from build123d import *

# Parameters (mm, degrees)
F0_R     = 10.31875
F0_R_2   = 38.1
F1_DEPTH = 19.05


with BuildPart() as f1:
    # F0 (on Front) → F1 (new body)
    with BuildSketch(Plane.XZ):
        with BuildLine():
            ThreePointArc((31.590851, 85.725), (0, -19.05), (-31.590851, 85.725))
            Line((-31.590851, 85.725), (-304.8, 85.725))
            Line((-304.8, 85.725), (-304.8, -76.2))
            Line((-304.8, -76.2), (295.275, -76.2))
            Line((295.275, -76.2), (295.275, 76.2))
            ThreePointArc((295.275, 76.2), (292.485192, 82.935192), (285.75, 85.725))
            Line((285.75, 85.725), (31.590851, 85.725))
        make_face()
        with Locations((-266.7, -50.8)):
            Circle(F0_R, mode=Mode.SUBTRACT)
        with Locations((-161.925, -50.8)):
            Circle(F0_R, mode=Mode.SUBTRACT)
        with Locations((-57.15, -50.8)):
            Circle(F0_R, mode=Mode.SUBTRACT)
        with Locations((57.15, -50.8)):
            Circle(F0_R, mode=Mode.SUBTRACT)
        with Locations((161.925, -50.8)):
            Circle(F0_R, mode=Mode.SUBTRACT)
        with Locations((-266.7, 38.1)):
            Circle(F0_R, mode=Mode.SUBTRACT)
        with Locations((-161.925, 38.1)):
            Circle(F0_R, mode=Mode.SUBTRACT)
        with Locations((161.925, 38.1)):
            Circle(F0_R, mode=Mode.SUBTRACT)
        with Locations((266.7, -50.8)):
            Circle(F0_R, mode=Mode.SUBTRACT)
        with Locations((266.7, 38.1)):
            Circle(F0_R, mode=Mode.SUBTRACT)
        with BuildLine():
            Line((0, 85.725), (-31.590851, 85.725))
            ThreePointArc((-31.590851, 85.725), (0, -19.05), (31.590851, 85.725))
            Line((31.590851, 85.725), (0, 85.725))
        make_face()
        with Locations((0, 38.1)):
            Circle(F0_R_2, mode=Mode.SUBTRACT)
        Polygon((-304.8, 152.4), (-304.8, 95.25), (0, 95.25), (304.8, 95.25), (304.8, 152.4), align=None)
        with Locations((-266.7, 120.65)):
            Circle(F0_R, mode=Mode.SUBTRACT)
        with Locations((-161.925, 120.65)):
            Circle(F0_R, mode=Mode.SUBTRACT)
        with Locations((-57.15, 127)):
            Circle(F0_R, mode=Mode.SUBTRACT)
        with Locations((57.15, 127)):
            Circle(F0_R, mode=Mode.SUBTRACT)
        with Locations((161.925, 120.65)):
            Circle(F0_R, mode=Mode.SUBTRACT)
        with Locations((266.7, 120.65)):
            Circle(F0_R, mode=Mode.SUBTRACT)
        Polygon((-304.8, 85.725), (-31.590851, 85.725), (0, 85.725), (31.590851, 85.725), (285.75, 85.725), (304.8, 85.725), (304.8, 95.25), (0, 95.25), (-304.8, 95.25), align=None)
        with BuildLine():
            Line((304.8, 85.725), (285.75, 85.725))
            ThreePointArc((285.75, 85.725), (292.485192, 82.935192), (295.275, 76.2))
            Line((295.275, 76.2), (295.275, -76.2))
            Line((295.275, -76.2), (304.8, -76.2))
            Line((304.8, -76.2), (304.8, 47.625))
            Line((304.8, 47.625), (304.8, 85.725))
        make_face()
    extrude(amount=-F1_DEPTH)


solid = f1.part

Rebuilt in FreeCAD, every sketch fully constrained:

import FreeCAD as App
import Part
import Sketcher

V = App.Vector
Q = App.Units.Quantity


def add_polygon(sketch, points):
    """Adds a closed chain of lines whose ends are joined by coincident constraints."""
    first, n = sketch.GeometryCount, len(points)
    for a, b in zip(points, points[1:] + points[:1]):
        sketch.addGeometry(Part.LineSegment(App.Vector(*a, 0), App.Vector(*b, 0)), False)
    for i in range(n):
        sketch.addConstraint(Sketcher.Constraint("Coincident", first + i, 2, first + (i + 1) % n, 1))

doc = App.newDocument("Part")
params = doc.addObject("Spreadsheet::Sheet", "Params")
for row, (alias, value) in enumerate([
    ("sketch1_diameter", "3 in"),
    ("sketch1_width", "24 in"),
    ("sketch1_height", "9 in"),
    ("sketch1_diameter2", "0.8125 in"),
    ("pad1_length", "0.75 in"),
], start=1):
    params.set(f"A{row}", alias)
    params.set(f"B{row}", "=" + value)
    params.setAlias(f"B{row}", alias)

body = doc.addObject("PartDesign::Body", "Body")

sketch1 = doc.addObject("Sketcher::SketchObject", "Sketch")
body.addObject(sketch1)
sketch1.AttachmentSupport = (doc.XZ_Plane, [""])
sketch1.MapMode = "FlatFace"
add_polygon(sketch1, [(305, 152), (-305, 152), (-305, -76), (305, -76)])
sketch1.addGeometry(Part.Circle(V(-267, -51, 0), V(0, 0, 1), 10), False)
sketch1.addGeometry(Part.Circle(V(-162, -51, 0), V(0, 0, 1), 10), False)
sketch1.addGeometry(Part.Circle(V(-57, -51, 0), V(0, 0, 1), 10), False)
sketch1.addGeometry(Part.Circle(V(57, -51, 0), V(0, 0, 1), 10), False)
sketch1.addGeometry(Part.Circle(V(162, -51, 0), V(0, 0, 1), 10), False)
sketch1.addGeometry(Part.Circle(V(267, -51, 0), V(0, 0, 1), 10), False)
sketch1.addGeometry(Part.Circle(V(-267, 38, 0), V(0, 0, 1), 10), False)
sketch1.addGeometry(Part.Circle(V(-162, 38, 0), V(0, 0, 1), 10), False)
sketch1.addGeometry(Part.Circle(V(0, 38, 0), V(0, 0, 1), 38), False)
sketch1.addGeometry(Part.Circle(V(162, 38, 0), V(0, 0, 1), 10), False)
sketch1.addGeometry(Part.Circle(V(267, 38, 0), V(0, 0, 1), 10), False)
sketch1.addGeometry(Part.Circle(V(-57, 127, 0), V(0, 0, 1), 10), False)
sketch1.addGeometry(Part.Circle(V(57, 127, 0), V(0, 0, 1), 10), False)
sketch1.addGeometry(Part.Circle(V(-267, 121, 0), V(0, 0, 1), 10), False)
sketch1.addGeometry(Part.Circle(V(-162, 121, 0), V(0, 0, 1), 10), False)
sketch1.addGeometry(Part.Circle(V(162, 121, 0), V(0, 0, 1), 10), False)
sketch1.addGeometry(Part.Circle(V(267, 121, 0), V(0, 0, 1), 10), False)
sketch1.addConstraint(Sketcher.Constraint("Horizontal", 0))
sketch1.addConstraint(Sketcher.Constraint("Vertical", 1))
sketch1.addConstraint(Sketcher.Constraint("Horizontal", 2))
sketch1.addConstraint(Sketcher.Constraint("Vertical", 3))
sketch1.addConstraint(Sketcher.Constraint("Equal", 4, 5))
sketch1.addConstraint(Sketcher.Constraint("Equal", 5, 6))
sketch1.addConstraint(Sketcher.Constraint("Equal", 6, 7))
sketch1.addConstraint(Sketcher.Constraint("Equal", 7, 8))
sketch1.addConstraint(Sketcher.Constraint("Equal", 8, 9))
sketch1.addConstraint(Sketcher.Constraint("Equal", 9, 10))
sketch1.addConstraint(Sketcher.Constraint("Equal", 10, 11))
sketch1.addConstraint(Sketcher.Constraint("Equal", 11, 13))
sketch1.addConstraint(Sketcher.Constraint("Equal", 13, 14))
sketch1.addConstraint(Sketcher.Constraint("Equal", 14, 15))
sketch1.addConstraint(Sketcher.Constraint("Equal", 15, 16))
sketch1.addConstraint(Sketcher.Constraint("Equal", 16, 17))
sketch1.addConstraint(Sketcher.Constraint("Equal", 17, 18))
sketch1.addConstraint(Sketcher.Constraint("Equal", 18, 19))
sketch1.addConstraint(Sketcher.Constraint("Equal", 19, 20))
sketch1.addConstraint(Sketcher.Constraint("Symmetric", 6, 3, 7, 3, -2))
sketch1.addConstraint(Sketcher.Constraint("Symmetric", 5, 3, 8, 3, -2))
sketch1.addConstraint(Sketcher.Constraint("Symmetric", 4, 3, 9, 3, -2))
sketch1.addConstraint(Sketcher.Constraint("Symmetric", 11, 3, 13, 3, -2))
sketch1.addConstraint(Sketcher.Constraint("Symmetric", 10, 3, 14, 3, -2))
sketch1.addConstraint(Sketcher.Constraint("Symmetric", 15, 3, 16, 3, -2))
sketch1.addConstraint(Sketcher.Constraint("Symmetric", 18, 3, 19, 3, -2))
sketch1.addConstraint(Sketcher.Constraint("Symmetric", 17, 3, 20, 3, -2))
sketch1.addConstraint(Sketcher.Constraint("PointOnObject", 12, 3, -2))
sketch1.addConstraint(Sketcher.Constraint("Horizontal", 4, 3, 5, 3))
sketch1.addConstraint(Sketcher.Constraint("Horizontal", 5, 3, 6, 3))
sketch1.addConstraint(Sketcher.Constraint("Horizontal", 10, 3, 11, 3))
sketch1.addConstraint(Sketcher.Constraint("Horizontal", 11, 3, 12, 3))
sketch1.addConstraint(Sketcher.Constraint("Horizontal", 17, 3, 18, 3))
sketch1.addConstraint(Sketcher.Constraint("Vertical", 4, 3, 10, 3))
sketch1.addConstraint(Sketcher.Constraint("Vertical", 5, 3, 11, 3))
sketch1.addConstraint(Sketcher.Constraint("Vertical", 6, 3, 15, 3))
sketch1.addConstraint(Sketcher.Constraint("Vertical", 10, 3, 17, 3))
sketch1.addConstraint(Sketcher.Constraint("Vertical", 11, 3, 18, 3))
sketch1.addConstraint(Sketcher.Constraint("Diameter", 12, Q("3 in")))
sketch1.addConstraint(Sketcher.Constraint("DistanceX", 0, 2, 0, 1, Q("24 in")))
sketch1.addConstraint(Sketcher.Constraint("DistanceY", 1, 2, 1, 1, Q("9 in")))
sketch1.addConstraint(Sketcher.Constraint("Diameter", 4, Q("0.8125 in")))
sketch1.addConstraint(Sketcher.Constraint("DistanceY", 4, 3, -1, 1, Q("2 in")))
sketch1.addConstraint(Sketcher.Constraint("DistanceY", -1, 1, 15, 3, Q("5 in")))
sketch1.addConstraint(Sketcher.Constraint("DistanceX", 0, 2, -1, 1, Q("12 in")))
sketch1.addConstraint(Sketcher.Constraint("DistanceY", -1, 1, 0, 2, Q("6 in")))
sketch1.addConstraint(Sketcher.Constraint("DistanceX", 4, 3, 9, 3, Q("21 in")))
sketch1.addConstraint(Sketcher.Constraint("DistanceY", -1, 1, 10, 3, Q("1.5 in")))
sketch1.addConstraint(Sketcher.Constraint("DistanceX", 6, 3, 7, 3, Q("4.5 in")))
sketch1.addConstraint(Sketcher.Constraint("DistanceY", -1, 1, 17, 3, Q("4.75 in")))
sketch1.addConstraint(Sketcher.Constraint("DistanceX", 5, 3, 8, 3, Q("12.75 in")))
sketch1.setExpression("Constraints[42]", "Params.sketch1_diameter")
sketch1.setExpression("Constraints[43]", "Params.sketch1_width")
sketch1.setExpression("Constraints[44]", "Params.sketch1_height")
sketch1.setExpression("Constraints[45]", "Params.sketch1_diameter2")
pad1 = doc.addObject("PartDesign::Pad", "Pad")
body.addObject(pad1)
pad1.Profile = sketch1
pad1.setExpression("Length", "Params.pad1_length")
pad1.Reversed = True

doc.recompute()
